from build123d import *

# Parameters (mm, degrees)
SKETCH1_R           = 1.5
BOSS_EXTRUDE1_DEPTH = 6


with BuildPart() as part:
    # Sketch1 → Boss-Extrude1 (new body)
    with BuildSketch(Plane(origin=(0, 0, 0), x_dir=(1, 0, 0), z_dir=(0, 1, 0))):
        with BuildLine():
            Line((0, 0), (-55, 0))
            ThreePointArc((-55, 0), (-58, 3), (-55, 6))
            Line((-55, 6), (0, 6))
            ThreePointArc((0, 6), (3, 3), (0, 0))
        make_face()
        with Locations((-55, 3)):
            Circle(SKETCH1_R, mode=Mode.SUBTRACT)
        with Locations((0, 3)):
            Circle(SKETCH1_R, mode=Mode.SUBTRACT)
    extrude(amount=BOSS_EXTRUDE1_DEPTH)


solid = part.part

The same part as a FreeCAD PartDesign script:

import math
import FreeCAD as App
import Part
import Sketcher
Q = App.Units.Quantity

doc = App.newDocument("Part")
params = doc.addObject("Spreadsheet::Sheet", "Params")
for row, (alias, value) in enumerate([
    ("sketch1_diameter", "3 mm"),
    ("sketch1_radius", "3 mm"),
    ("sketch1_width", "55 mm"),
    ("pad1_length", "6 mm"),
], start=1):
    params.set(f"A{row}", alias)
    params.set(f"B{row}", "=" + value)
    params.setAlias(f"B{row}", alias)

body = doc.addObject("PartDesign::Body", "Body")

# Sketch on XZ plane
sketch1 = body.newObject("Sketcher::SketchObject", "Sketch")
sketch1.AttachmentSupport = (doc.getObject("XZ_Plane"), [""])
sketch1.MapMode = "FlatFace"
sketch1.addGeometry([
    Part.LineSegment(App.Vector(-55, 0, 0), App.Vector(0, 0, 0)),  # 0
    Part.ArcOfCircle(Part.Circle(App.Vector(0, -3, 0), App.Vector(0, 0, 1), 3), math.radians(-90), math.radians(90)),  # 1
    Part.LineSegment(App.Vector(0, -6, 0), App.Vector(-55, -6, 0)),  # 2
    Part.ArcOfCircle(Part.Circle(App.Vector(-55, -3, 0), App.Vector(0, 0, 1), 3), math.radians(90), math.radians(270)),  # 3
    Part.Circle(App.Vector(0, -3, 0), App.Vector(0, 0, 1), 1.5),  # 4
    Part.Circle(App.Vector(-55, -3, 0), App.Vector(0, 0, 1), 1.5),  # 5
], False)
sketch1.addConstraint([
    Sketcher.Constraint("Tangent", 0, 2, 1, 2),
    Sketcher.Constraint("Tangent", 1, 1, 2, 1),
    Sketcher.Constraint("Tangent", 2, 2, 3, 2),
    Sketcher.Constraint("Tangent", 3, 1, 0, 1),
    Sketcher.Constraint("Horizontal", 0),
    Sketcher.Constraint("Horizontal", 2),
    Sketcher.Constraint("Coincident", 0, 2, -1, 1),
    Sketcher.Constraint("Coincident", 4, 3, 1, 3),
    Sketcher.Constraint("Coincident", 5, 3, 3, 3),
    Sketcher.Constraint("Equal", 4, 5),
    Sketcher.Constraint("Diameter", 4, Q("3 mm")),
    Sketcher.Constraint("Radius", 1, Q("3 mm")),
    Sketcher.Constraint("DistanceX", 0, 1, 0, 2, Q("55 mm")),
])
sketch1.setExpression("Constraints[10]", "Params.sketch1_diameter")
sketch1.setExpression("Constraints[11]", "Params.sketch1_radius")
sketch1.setExpression("Constraints[12]", "Params.sketch1_width")
pad1 = body.newObject("PartDesign::Pad", "Pad")
pad1.Profile = sketch1
pad1.setExpression("Length", "Params.pad1_length")
pad1.Reversed = True

doc.recompute()
